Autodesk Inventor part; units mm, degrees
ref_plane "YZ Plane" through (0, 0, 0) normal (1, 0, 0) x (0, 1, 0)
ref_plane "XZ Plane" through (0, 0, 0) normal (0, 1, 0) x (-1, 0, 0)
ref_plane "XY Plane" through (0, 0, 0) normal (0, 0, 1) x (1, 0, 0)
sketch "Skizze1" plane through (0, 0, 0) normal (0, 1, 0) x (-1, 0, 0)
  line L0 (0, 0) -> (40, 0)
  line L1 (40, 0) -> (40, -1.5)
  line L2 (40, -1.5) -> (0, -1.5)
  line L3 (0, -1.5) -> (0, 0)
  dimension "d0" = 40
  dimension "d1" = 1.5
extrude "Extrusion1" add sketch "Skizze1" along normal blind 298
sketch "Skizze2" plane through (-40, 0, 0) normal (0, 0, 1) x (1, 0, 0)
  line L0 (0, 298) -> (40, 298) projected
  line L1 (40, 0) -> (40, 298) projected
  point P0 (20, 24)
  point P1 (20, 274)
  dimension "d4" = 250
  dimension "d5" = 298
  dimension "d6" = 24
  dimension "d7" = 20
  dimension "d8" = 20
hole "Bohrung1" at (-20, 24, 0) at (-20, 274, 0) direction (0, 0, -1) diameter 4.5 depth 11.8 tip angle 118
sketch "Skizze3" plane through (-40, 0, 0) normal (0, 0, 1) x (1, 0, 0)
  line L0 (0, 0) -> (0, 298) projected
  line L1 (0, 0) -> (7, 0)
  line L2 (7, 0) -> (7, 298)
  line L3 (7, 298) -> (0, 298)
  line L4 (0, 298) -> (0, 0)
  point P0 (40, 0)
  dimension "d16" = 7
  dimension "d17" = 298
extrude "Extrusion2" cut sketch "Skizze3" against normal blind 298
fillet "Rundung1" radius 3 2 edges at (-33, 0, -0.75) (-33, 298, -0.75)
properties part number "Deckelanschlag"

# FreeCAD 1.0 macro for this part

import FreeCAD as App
import Part
import Sketcher

V = App.Vector


def edges_at(feature, points):
    """Names of the edges that pass closest to the given points."""
    edges = feature.Shape.Edges
    near = lambda p: min(range(len(edges)), key=lambda i: edges[i].distToShape(Part.Vertex(*p))[0])
    return sorted({f"Edge{near(p) + 1}" for p in points})

doc = App.newDocument("Part")
body = doc.addObject("PartDesign::Body", "Body")

sketch1 = body.newObject("Sketcher::SketchObject", "Sketch")
sketch1.AttachmentSupport = (doc.getObject("XZ_Plane"), [""])
sketch1.MapMode = "FlatFace"
sketch1.addGeometry(Part.LineSegment(V(-40, 0, 0), V(0, 0, 0)), False)
sketch1.addGeometry(Part.LineSegment(V(0, 0, 0), V(0, -1.5, 0)), False)
sketch1.addGeometry(Part.LineSegment(V(0, -1.5, 0), V(-40, -1.5, 0)), False)
sketch1.addGeometry(Part.LineSegment(V(-40, -1.5, 0), V(-40, 0, 0)), False)
sketch1.addConstraint(Sketcher.Constraint("Coincident", 0, 2, 1, 1))
sketch1.addConstraint(Sketcher.Constraint("Coincident", 1, 2, 2, 1))
sketch1.addConstraint(Sketcher.Constraint("Coincident", 2, 2, 3, 1))
sketch1.addConstraint(Sketcher.Constraint("Coincident", 3, 2, 0, 1))
sketch1.addConstraint(Sketcher.Constraint("Horizontal", 0))
sketch1.addConstraint(Sketcher.Constraint("Vertical", 1))
sketch1.addConstraint(Sketcher.Constraint("Horizontal", 2))
sketch1.addConstraint(Sketcher.Constraint("Vertical", 3))
sketch1.addConstraint(Sketcher.Constraint("Coincident", 0, 2, -1, 1))
sketch1.addConstraint(Sketcher.Constraint("DistanceX", 0, 1, 0, 2, 40.0))
sketch1.addConstraint(Sketcher.Constraint("DistanceY", 1, 2, 1, 1, 1.5))
pad1 = body.newObject("PartDesign::Pad", "Pad")
pad1.Profile = sketch1
pad1.Length = 298
pad1.Reversed = True

sketch2 = body.newObject("Sketcher::SketchObject", "Sketch001")
sketch2.AttachmentSupport = (doc.getObject("XY_Plane"), [""])
sketch2.MapMode = "FlatFace"
sketch2.addGeometry(Part.Circle(V(-20, 24, 0), V(0, 0, 1), 2.2), False)
sketch2.addGeometry(Part.Circle(V(-20, 274, 0), V(0, 0, 1), 2.2), False)
sketch2.addConstraint(Sketcher.Constraint("Equal", 0, 1))
sketch2.addConstraint(Sketcher.Constraint("Vertical", 0, 3, 1, 3))
sketch2.addConstraint(Sketcher.Constraint("Diameter", 0, 4.5))
sketch2.addConstraint(Sketcher.Constraint("DistanceX", 0, 3, -1, 1, 20.0))
sketch2.addConstraint(Sketcher.Constraint("DistanceY", -1, 1, 0, 3, 24.0))
sketch2.addConstraint(Sketcher.Constraint("DistanceY", -1, 1, 1, 3, 274.0))
doc.recompute()
hole = body.newObject("PartDesign::Hole", "Hole")
hole.Profile = sketch2
hole.ThreadType = "None"
hole.Diameter = 4.5
hole.DepthType = "Dimension"
hole.Depth = 11.8
hole.DrillPoint = "Angled"
hole.DrillPointAngle = 118

sketch3 = body.newObject("Sketcher::SketchObject", "Sketch002")
sketch3.AttachmentSupport = (doc.getObject("XY_Plane"), [""])
sketch3.MapMode = "FlatFace"
sketch3.addGeometry(Part.LineSegment(V(-40, 298, 0), V(-40, 0, 0)), False)
sketch3.addGeometry(Part.LineSegment(V(-40, 0, 0), V(-33, 0, 0)), False)
sketch3.addGeometry(Part.LineSegment(V(-33, 0, 0), V(-33, 298, 0)), False)
sketch3.addGeometry(Part.LineSegment(V(-33, 298, 0), V(-40, 298, 0)), False)
sketch3.addConstraint(Sketcher.Constraint("Coincident", 0, 2, 1, 1))
sketch3.addConstraint(Sketcher.Constraint("Coincident", 1, 2, 2, 1))
sketch3.addConstraint(Sketcher.Constraint("Coincident", 2, 2, 3, 1))
sketch3.addConstraint(Sketcher.Constraint("Coincident", 3, 2, 0, 1))
sketch3.addConstraint(Sketcher.Constraint("Vertical", 0))
sketch3.addConstraint(Sketcher.Constraint("Horizontal", 1))
sketch3.addConstraint(Sketcher.Constraint("Vertical", 2))
sketch3.addConstraint(Sketcher.Constraint("Horizontal", 3))
sketch3.addConstraint(Sketcher.Constraint("PointOnObject", 0, 2, -1))
sketch3.addConstraint(Sketcher.Constraint("DistanceX", 1, 1, 1, 2, 7.0))
sketch3.addConstraint(Sketcher.Constraint("DistanceY", 0, 2, 0, 1, 298.0))
sketch3.addConstraint(Sketcher.Constraint("DistanceX", 0, 2, -1, 1, 40.0))
pocket1 = body.newObject("PartDesign::Pocket", "Pocket")
pocket1.Profile = sketch3
pocket1.Length = 298
doc.recompute()

fillet = body.newObject("PartDesign::Fillet", "Fillet")
fillet.Base = (pocket1, edges_at(pocket1, [(-33, 0, -0.75), (-33, 298, -0.75)]))
fillet.Radius = 3

doc.recompute()
